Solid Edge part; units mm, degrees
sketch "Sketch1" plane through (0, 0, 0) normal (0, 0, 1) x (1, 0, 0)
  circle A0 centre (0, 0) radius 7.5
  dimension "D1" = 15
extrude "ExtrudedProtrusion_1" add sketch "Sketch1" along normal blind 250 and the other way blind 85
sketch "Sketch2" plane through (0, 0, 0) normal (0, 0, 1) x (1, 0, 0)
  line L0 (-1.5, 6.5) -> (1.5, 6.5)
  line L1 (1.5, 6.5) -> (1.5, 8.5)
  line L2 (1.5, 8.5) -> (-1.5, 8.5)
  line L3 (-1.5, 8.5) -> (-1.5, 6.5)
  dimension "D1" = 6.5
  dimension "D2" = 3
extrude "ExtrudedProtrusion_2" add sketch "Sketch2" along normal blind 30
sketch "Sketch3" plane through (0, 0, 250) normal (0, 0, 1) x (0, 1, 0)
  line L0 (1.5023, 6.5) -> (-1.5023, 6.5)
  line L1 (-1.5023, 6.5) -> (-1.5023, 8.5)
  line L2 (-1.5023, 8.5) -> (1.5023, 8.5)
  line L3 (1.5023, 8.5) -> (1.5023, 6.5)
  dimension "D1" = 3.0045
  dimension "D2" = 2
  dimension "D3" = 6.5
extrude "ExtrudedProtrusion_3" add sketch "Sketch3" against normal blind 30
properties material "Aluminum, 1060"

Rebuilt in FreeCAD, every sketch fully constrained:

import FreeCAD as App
import Part
import Sketcher
from FreeCAD import Vector
Q = App.Units.Quantity

doc = App.newDocument("Part")
body = doc.addObject("PartDesign::Body", "Body")

sketch1 = body.newObject("Sketcher::SketchObject", "Sketch")
sketch1.AttachmentSupport = (doc.getObject("XY_Plane"), [""])
sketch1.MapMode = "FlatFace"
sketch1.addGeometry(Part.Circle(Vector(0, 0, 0), Vector(0, 0, 1), 7.5), False)
sketch1.addConstraint([
    Sketcher.Constraint("Coincident", 0, 3, -1, 1),
    Sketcher.Constraint("Diameter", 0, Q("15 mm")),
])
pad1 = body.newObject("PartDesign::Pad", "Pad")
pad1.Profile = sketch1
pad1.Type = "TwoLengths"
pad1.Length = 250
pad1.Length2 = 85

sketch2 = body.newObject("Sketcher::SketchObject", "Sketch001")
sketch2.AttachmentSupport = (doc.getObject("XY_Plane"), [""])
sketch2.MapMode = "FlatFace"
sketch2.addGeometry([
    Part.LineSegment(Vector(-1.5, 8.5, 0), Vector(-1.5, 6.5, 0)),
    Part.LineSegment(Vector(-1.5, 6.5, 0), Vector(1.5, 6.5, 0)),
    Part.LineSegment(Vector(1.5, 6.5, 0), Vector(1.5, 8.5, 0)),
    Part.LineSegment(Vector(1.5, 8.5, 0), Vector(-1.5, 8.5, 0)),
], False)
sketch2.addConstraint([
    Sketcher.Constraint("Coincident", 0, 2, 1, 1),
    Sketcher.Constraint("Coincident", 1, 2, 2, 1),
    Sketcher.Constraint("Coincident", 2, 2, 3, 1),
    Sketcher.Constraint("Coincident", 3, 2, 0, 1),
    Sketcher.Constraint("Vertical", 0),
    Sketcher.Constraint("Horizontal", 1),
    Sketcher.Constraint("Vertical", 2),
    Sketcher.Constraint("Horizontal", 3),
    Sketcher.Constraint("DistanceX", 0, 2, -1, 1, Q("1.5 mm")),
    Sketcher.Constraint("DistanceX", -1, 1, 1, 2, Q("1.5 mm")),
    Sketcher.Constraint("DistanceY", 0, 2, 0, 1, Q("2 mm")),
    Sketcher.Constraint("DistanceY", -1, 1, 0, 2, Q("6.5 mm")),
])
pad2 = body.newObject("PartDesign::Pad", "Pad001")
pad2.Profile = sketch2
pad2.Length = 30

sketch3 = body.newObject("Sketcher::SketchObject", "Sketch002")
sketch3.AttachmentSupport = (doc.getObject("XY_Plane"), [""])
sketch3.MapMode = "FlatFace"
sketch3.AttachmentOffset = App.Placement(Vector(0, 0, 250), App.Rotation())
sketch3.addGeometry([
    Part.LineSegment(Vector(-6.5, -1.5023, 0), Vector(-6.5, 1.5023, 0)),
    Part.LineSegment(Vector(-6.5, 1.5023, 0), Vector(-8.5, 1.5023, 0)),
    Part.LineSegment(Vector(-8.5, 1.5023, 0), Vector(-8.5, -1.5023, 0)),
    Part.LineSegment(Vector(-8.5, -1.5023, 0), Vector(-6.5, -1.5023, 0)),
], False)
sketch3.addConstraint([
    Sketcher.Constraint("Coincident", 0, 2, 1, 1),
    Sketcher.Constraint("Coincident", 1, 2, 2, 1),
    Sketcher.Constraint("Coincident", 2, 2, 3, 1),
    Sketcher.Constraint("Coincident", 3, 2, 0, 1),
    Sketcher.Constraint("Vertical", 0),
    Sketcher.Constraint("Horizontal", 1),
    Sketcher.Constraint("Vertical", 2),
    Sketcher.Constraint("Horizontal", 3),
    Sketcher.Constraint("DistanceX", 1, 2, 1, 1, Q("2 mm")),
    Sketcher.Constraint("DistanceY", -1, 1, 0, 2, Q("1.5023 mm")),
    Sketcher.Constraint("DistanceY", 2, 2, -1, 1, Q("1.5023 mm")),
    Sketcher.Constraint("DistanceX", 0, 2, -1, 1, Q("6.5 mm")),
])
pad3 = body.newObject("PartDesign::Pad", "Pad002")
pad3.Profile = sketch3
pad3.Length = 30
pad3.Reversed = True

doc.recompute()
